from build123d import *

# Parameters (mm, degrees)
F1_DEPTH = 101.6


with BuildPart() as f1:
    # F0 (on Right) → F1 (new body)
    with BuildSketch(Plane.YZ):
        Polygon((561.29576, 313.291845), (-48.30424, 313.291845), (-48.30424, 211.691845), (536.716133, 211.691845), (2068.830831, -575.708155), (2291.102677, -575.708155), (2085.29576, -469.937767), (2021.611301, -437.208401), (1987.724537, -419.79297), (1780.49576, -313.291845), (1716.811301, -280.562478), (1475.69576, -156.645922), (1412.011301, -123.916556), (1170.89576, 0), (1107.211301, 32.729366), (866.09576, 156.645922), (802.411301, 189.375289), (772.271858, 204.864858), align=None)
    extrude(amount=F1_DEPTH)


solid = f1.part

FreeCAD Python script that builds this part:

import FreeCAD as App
import Part
import Sketcher

V = App.Vector
Q = App.Units.Quantity


def add_polygon(sketch, points):
    """Adds a closed chain of lines whose ends are joined by coincident constraints."""
    first, n = sketch.GeometryCount, len(points)
    for a, b in zip(points, points[1:] + points[:1]):
        sketch.addGeometry(Part.LineSegment(App.Vector(*a, 0), App.Vector(*b, 0)), False)
    for i in range(n):
        sketch.addConstraint(Sketcher.Constraint("Coincident", first + i, 2, first + (i + 1) % n, 1))

doc = App.newDocument("Part")
params = doc.addObject("Spreadsheet::Sheet", "Params")
for row, (alias, value) in enumerate([
    ("sketch1_width", "24 in"),
    ("sketch1_height", "4 in"),
    ("sketch1_length", "1.5 in"),
    ("pad1_length", "4 in"),
], start=1):
    params.set(f"A{row}", alias)
    params.set(f"B{row}", "=" + value)
    params.setAlias(f"B{row}", alias)

body = doc.addObject("PartDesign::Body", "Body")

# Sketch on YZ plane
sketch1 = body.newObject("Sketcher::SketchObject", "Sketch")
sketch1.AttachmentSupport = (doc.getObject("YZ_Plane"), [""])
sketch1.MapMode = "FlatFace"
add_polygon(sketch1, [(561, 313), (-48, 313), (-48, 212), (537, 212), (2069, -576), (2291, -576), (2085, -470), (2022, -437), (1988, -420), (1780, -313), (1717, -281), (1476, -157), (1412, -124), (1171, 0), (1107, 33), (866, 157), (802, 189), (772, 205)])  # lines 0-17
sketch1.addConstraint([
    Sketcher.Constraint("Horizontal", 0),
    Sketcher.Constraint("Vertical", 1),
    Sketcher.Constraint("Horizontal", 2),
    Sketcher.Constraint("Horizontal", 4),
    Sketcher.Constraint("PointOnObject", 12, 2, -1),
    Sketcher.Constraint("Parallel", 3, 5),
    Sketcher.Constraint("Parallel", 5, 6),
    Sketcher.Constraint("Parallel", 6, 7),
    Sketcher.Constraint("Parallel", 7, 8),
    Sketcher.Constraint("Parallel", 8, 9),
    Sketcher.Constraint("Parallel", 9, 10),
    Sketcher.Constraint("Parallel", 10, 11),
    Sketcher.Constraint("Parallel", 11, 12),
    Sketcher.Constraint("Parallel", 12, 13),
    Sketcher.Constraint("Parallel", 13, 14),
    Sketcher.Constraint("Parallel", 14, 15),
    Sketcher.Constraint("Parallel", 15, 16),
    Sketcher.Constraint("Parallel", 16, 17),
    Sketcher.Constraint("Equal", 6, 9),
    Sketcher.Constraint("Equal", 9, 11),
    Sketcher.Constraint("Equal", 10, 12),
    Sketcher.Constraint("Equal", 11, 13),
    Sketcher.Constraint("Equal", 12, 14),
    Sketcher.Constraint("Equal", 13, 15),
    Sketcher.Constraint("DistanceX", 0, 2, 0, 1, Q("24 in")),
    Sketcher.Constraint("DistanceY", 1, 2, 1, 1, Q("4 in")),
    Sketcher.Constraint("DistanceY", 3, 2, 2, 2, Q("31 in")),
    Sketcher.Constraint("DistanceX", 1, 2, 5, 2, Q("84 in")),
    Sketcher.Constraint("DistanceX", 8, 2, 5, 2, Q("12 in")),
    Sketcher.Constraint("DistanceX", 10, 2, 8, 2, Q("12 in")),
    Sketcher.Constraint("Distance", 7, Q("1.5 in")),
    Sketcher.Constraint("Angle", 3, Q("-27.2 deg")),
    Sketcher.Constraint("DistanceX", -1, 1, 6, 2, 2021.611301),
    Sketcher.Constraint("DistanceY", 6, 2, -1, 1, 437.208401),
    Sketcher.Constraint("DistanceX", 2, 1, 2, 2, 585.020373),
    Sketcher.Constraint("DistanceX", -1, 1, 16, 2, 772.271858),
])
sketch1.setExpression("Constraints[42]", "Params.sketch1_width")
sketch1.setExpression("Constraints[43]", "Params.sketch1_height")
sketch1.setExpression("Constraints[48]", "Params.sketch1_length")
pad1 = body.newObject("PartDesign::Pad", "Pad")
pad1.Profile = sketch1
pad1.setExpression("Length", "Params.pad1_length")

doc.recompute()
